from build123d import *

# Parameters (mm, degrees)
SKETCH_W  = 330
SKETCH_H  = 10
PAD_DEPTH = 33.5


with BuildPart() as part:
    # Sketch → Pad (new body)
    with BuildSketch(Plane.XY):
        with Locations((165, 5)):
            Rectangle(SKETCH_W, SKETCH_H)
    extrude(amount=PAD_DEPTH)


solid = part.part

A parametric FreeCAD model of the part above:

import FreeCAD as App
import Part
import Sketcher


def add_polygon(sketch, points):
    """Adds a closed chain of lines whose ends are joined by coincident constraints."""
    first, n = sketch.GeometryCount, len(points)
    for a, b in zip(points, points[1:] + points[:1]):
        sketch.addGeometry(Part.LineSegment(App.Vector(*a, 0), App.Vector(*b, 0)), False)
    for i in range(n):
        sketch.addConstraint(Sketcher.Constraint("Coincident", first + i, 2, first + (i + 1) % n, 1))

doc = App.newDocument("Part")
body = doc.addObject("PartDesign::Body", "Body")

sketch1 = doc.addObject("Sketcher::SketchObject", "Sketch")
body.addObject(sketch1)
sketch1.AttachmentSupport = (doc.XY_Plane, [""])
sketch1.MapMode = "FlatFace"
add_polygon(sketch1, [(0, 10), (0, 0), (330, 0), (330, 10)])
sketch1.addConstraint(Sketcher.Constraint("Vertical", 0))
sketch1.addConstraint(Sketcher.Constraint("Horizontal", 1))
sketch1.addConstraint(Sketcher.Constraint("Vertical", 2))
sketch1.addConstraint(Sketcher.Constraint("Horizontal", 3))
sketch1.addConstraint(Sketcher.Constraint("Coincident", 0, 2, -1, 1))
sketch1.addConstraint(Sketcher.Constraint("DistanceX", 1, 1, 1, 2, 330.0))
sketch1.addConstraint(Sketcher.Constraint("DistanceY", 0, 2, 0, 1, 10.0))
pad1 = doc.addObject("PartDesign::Pad", "Pad")
body.addObject(pad1)
pad1.Profile = sketch1
pad1.Length = 33.5

doc.recompute()
